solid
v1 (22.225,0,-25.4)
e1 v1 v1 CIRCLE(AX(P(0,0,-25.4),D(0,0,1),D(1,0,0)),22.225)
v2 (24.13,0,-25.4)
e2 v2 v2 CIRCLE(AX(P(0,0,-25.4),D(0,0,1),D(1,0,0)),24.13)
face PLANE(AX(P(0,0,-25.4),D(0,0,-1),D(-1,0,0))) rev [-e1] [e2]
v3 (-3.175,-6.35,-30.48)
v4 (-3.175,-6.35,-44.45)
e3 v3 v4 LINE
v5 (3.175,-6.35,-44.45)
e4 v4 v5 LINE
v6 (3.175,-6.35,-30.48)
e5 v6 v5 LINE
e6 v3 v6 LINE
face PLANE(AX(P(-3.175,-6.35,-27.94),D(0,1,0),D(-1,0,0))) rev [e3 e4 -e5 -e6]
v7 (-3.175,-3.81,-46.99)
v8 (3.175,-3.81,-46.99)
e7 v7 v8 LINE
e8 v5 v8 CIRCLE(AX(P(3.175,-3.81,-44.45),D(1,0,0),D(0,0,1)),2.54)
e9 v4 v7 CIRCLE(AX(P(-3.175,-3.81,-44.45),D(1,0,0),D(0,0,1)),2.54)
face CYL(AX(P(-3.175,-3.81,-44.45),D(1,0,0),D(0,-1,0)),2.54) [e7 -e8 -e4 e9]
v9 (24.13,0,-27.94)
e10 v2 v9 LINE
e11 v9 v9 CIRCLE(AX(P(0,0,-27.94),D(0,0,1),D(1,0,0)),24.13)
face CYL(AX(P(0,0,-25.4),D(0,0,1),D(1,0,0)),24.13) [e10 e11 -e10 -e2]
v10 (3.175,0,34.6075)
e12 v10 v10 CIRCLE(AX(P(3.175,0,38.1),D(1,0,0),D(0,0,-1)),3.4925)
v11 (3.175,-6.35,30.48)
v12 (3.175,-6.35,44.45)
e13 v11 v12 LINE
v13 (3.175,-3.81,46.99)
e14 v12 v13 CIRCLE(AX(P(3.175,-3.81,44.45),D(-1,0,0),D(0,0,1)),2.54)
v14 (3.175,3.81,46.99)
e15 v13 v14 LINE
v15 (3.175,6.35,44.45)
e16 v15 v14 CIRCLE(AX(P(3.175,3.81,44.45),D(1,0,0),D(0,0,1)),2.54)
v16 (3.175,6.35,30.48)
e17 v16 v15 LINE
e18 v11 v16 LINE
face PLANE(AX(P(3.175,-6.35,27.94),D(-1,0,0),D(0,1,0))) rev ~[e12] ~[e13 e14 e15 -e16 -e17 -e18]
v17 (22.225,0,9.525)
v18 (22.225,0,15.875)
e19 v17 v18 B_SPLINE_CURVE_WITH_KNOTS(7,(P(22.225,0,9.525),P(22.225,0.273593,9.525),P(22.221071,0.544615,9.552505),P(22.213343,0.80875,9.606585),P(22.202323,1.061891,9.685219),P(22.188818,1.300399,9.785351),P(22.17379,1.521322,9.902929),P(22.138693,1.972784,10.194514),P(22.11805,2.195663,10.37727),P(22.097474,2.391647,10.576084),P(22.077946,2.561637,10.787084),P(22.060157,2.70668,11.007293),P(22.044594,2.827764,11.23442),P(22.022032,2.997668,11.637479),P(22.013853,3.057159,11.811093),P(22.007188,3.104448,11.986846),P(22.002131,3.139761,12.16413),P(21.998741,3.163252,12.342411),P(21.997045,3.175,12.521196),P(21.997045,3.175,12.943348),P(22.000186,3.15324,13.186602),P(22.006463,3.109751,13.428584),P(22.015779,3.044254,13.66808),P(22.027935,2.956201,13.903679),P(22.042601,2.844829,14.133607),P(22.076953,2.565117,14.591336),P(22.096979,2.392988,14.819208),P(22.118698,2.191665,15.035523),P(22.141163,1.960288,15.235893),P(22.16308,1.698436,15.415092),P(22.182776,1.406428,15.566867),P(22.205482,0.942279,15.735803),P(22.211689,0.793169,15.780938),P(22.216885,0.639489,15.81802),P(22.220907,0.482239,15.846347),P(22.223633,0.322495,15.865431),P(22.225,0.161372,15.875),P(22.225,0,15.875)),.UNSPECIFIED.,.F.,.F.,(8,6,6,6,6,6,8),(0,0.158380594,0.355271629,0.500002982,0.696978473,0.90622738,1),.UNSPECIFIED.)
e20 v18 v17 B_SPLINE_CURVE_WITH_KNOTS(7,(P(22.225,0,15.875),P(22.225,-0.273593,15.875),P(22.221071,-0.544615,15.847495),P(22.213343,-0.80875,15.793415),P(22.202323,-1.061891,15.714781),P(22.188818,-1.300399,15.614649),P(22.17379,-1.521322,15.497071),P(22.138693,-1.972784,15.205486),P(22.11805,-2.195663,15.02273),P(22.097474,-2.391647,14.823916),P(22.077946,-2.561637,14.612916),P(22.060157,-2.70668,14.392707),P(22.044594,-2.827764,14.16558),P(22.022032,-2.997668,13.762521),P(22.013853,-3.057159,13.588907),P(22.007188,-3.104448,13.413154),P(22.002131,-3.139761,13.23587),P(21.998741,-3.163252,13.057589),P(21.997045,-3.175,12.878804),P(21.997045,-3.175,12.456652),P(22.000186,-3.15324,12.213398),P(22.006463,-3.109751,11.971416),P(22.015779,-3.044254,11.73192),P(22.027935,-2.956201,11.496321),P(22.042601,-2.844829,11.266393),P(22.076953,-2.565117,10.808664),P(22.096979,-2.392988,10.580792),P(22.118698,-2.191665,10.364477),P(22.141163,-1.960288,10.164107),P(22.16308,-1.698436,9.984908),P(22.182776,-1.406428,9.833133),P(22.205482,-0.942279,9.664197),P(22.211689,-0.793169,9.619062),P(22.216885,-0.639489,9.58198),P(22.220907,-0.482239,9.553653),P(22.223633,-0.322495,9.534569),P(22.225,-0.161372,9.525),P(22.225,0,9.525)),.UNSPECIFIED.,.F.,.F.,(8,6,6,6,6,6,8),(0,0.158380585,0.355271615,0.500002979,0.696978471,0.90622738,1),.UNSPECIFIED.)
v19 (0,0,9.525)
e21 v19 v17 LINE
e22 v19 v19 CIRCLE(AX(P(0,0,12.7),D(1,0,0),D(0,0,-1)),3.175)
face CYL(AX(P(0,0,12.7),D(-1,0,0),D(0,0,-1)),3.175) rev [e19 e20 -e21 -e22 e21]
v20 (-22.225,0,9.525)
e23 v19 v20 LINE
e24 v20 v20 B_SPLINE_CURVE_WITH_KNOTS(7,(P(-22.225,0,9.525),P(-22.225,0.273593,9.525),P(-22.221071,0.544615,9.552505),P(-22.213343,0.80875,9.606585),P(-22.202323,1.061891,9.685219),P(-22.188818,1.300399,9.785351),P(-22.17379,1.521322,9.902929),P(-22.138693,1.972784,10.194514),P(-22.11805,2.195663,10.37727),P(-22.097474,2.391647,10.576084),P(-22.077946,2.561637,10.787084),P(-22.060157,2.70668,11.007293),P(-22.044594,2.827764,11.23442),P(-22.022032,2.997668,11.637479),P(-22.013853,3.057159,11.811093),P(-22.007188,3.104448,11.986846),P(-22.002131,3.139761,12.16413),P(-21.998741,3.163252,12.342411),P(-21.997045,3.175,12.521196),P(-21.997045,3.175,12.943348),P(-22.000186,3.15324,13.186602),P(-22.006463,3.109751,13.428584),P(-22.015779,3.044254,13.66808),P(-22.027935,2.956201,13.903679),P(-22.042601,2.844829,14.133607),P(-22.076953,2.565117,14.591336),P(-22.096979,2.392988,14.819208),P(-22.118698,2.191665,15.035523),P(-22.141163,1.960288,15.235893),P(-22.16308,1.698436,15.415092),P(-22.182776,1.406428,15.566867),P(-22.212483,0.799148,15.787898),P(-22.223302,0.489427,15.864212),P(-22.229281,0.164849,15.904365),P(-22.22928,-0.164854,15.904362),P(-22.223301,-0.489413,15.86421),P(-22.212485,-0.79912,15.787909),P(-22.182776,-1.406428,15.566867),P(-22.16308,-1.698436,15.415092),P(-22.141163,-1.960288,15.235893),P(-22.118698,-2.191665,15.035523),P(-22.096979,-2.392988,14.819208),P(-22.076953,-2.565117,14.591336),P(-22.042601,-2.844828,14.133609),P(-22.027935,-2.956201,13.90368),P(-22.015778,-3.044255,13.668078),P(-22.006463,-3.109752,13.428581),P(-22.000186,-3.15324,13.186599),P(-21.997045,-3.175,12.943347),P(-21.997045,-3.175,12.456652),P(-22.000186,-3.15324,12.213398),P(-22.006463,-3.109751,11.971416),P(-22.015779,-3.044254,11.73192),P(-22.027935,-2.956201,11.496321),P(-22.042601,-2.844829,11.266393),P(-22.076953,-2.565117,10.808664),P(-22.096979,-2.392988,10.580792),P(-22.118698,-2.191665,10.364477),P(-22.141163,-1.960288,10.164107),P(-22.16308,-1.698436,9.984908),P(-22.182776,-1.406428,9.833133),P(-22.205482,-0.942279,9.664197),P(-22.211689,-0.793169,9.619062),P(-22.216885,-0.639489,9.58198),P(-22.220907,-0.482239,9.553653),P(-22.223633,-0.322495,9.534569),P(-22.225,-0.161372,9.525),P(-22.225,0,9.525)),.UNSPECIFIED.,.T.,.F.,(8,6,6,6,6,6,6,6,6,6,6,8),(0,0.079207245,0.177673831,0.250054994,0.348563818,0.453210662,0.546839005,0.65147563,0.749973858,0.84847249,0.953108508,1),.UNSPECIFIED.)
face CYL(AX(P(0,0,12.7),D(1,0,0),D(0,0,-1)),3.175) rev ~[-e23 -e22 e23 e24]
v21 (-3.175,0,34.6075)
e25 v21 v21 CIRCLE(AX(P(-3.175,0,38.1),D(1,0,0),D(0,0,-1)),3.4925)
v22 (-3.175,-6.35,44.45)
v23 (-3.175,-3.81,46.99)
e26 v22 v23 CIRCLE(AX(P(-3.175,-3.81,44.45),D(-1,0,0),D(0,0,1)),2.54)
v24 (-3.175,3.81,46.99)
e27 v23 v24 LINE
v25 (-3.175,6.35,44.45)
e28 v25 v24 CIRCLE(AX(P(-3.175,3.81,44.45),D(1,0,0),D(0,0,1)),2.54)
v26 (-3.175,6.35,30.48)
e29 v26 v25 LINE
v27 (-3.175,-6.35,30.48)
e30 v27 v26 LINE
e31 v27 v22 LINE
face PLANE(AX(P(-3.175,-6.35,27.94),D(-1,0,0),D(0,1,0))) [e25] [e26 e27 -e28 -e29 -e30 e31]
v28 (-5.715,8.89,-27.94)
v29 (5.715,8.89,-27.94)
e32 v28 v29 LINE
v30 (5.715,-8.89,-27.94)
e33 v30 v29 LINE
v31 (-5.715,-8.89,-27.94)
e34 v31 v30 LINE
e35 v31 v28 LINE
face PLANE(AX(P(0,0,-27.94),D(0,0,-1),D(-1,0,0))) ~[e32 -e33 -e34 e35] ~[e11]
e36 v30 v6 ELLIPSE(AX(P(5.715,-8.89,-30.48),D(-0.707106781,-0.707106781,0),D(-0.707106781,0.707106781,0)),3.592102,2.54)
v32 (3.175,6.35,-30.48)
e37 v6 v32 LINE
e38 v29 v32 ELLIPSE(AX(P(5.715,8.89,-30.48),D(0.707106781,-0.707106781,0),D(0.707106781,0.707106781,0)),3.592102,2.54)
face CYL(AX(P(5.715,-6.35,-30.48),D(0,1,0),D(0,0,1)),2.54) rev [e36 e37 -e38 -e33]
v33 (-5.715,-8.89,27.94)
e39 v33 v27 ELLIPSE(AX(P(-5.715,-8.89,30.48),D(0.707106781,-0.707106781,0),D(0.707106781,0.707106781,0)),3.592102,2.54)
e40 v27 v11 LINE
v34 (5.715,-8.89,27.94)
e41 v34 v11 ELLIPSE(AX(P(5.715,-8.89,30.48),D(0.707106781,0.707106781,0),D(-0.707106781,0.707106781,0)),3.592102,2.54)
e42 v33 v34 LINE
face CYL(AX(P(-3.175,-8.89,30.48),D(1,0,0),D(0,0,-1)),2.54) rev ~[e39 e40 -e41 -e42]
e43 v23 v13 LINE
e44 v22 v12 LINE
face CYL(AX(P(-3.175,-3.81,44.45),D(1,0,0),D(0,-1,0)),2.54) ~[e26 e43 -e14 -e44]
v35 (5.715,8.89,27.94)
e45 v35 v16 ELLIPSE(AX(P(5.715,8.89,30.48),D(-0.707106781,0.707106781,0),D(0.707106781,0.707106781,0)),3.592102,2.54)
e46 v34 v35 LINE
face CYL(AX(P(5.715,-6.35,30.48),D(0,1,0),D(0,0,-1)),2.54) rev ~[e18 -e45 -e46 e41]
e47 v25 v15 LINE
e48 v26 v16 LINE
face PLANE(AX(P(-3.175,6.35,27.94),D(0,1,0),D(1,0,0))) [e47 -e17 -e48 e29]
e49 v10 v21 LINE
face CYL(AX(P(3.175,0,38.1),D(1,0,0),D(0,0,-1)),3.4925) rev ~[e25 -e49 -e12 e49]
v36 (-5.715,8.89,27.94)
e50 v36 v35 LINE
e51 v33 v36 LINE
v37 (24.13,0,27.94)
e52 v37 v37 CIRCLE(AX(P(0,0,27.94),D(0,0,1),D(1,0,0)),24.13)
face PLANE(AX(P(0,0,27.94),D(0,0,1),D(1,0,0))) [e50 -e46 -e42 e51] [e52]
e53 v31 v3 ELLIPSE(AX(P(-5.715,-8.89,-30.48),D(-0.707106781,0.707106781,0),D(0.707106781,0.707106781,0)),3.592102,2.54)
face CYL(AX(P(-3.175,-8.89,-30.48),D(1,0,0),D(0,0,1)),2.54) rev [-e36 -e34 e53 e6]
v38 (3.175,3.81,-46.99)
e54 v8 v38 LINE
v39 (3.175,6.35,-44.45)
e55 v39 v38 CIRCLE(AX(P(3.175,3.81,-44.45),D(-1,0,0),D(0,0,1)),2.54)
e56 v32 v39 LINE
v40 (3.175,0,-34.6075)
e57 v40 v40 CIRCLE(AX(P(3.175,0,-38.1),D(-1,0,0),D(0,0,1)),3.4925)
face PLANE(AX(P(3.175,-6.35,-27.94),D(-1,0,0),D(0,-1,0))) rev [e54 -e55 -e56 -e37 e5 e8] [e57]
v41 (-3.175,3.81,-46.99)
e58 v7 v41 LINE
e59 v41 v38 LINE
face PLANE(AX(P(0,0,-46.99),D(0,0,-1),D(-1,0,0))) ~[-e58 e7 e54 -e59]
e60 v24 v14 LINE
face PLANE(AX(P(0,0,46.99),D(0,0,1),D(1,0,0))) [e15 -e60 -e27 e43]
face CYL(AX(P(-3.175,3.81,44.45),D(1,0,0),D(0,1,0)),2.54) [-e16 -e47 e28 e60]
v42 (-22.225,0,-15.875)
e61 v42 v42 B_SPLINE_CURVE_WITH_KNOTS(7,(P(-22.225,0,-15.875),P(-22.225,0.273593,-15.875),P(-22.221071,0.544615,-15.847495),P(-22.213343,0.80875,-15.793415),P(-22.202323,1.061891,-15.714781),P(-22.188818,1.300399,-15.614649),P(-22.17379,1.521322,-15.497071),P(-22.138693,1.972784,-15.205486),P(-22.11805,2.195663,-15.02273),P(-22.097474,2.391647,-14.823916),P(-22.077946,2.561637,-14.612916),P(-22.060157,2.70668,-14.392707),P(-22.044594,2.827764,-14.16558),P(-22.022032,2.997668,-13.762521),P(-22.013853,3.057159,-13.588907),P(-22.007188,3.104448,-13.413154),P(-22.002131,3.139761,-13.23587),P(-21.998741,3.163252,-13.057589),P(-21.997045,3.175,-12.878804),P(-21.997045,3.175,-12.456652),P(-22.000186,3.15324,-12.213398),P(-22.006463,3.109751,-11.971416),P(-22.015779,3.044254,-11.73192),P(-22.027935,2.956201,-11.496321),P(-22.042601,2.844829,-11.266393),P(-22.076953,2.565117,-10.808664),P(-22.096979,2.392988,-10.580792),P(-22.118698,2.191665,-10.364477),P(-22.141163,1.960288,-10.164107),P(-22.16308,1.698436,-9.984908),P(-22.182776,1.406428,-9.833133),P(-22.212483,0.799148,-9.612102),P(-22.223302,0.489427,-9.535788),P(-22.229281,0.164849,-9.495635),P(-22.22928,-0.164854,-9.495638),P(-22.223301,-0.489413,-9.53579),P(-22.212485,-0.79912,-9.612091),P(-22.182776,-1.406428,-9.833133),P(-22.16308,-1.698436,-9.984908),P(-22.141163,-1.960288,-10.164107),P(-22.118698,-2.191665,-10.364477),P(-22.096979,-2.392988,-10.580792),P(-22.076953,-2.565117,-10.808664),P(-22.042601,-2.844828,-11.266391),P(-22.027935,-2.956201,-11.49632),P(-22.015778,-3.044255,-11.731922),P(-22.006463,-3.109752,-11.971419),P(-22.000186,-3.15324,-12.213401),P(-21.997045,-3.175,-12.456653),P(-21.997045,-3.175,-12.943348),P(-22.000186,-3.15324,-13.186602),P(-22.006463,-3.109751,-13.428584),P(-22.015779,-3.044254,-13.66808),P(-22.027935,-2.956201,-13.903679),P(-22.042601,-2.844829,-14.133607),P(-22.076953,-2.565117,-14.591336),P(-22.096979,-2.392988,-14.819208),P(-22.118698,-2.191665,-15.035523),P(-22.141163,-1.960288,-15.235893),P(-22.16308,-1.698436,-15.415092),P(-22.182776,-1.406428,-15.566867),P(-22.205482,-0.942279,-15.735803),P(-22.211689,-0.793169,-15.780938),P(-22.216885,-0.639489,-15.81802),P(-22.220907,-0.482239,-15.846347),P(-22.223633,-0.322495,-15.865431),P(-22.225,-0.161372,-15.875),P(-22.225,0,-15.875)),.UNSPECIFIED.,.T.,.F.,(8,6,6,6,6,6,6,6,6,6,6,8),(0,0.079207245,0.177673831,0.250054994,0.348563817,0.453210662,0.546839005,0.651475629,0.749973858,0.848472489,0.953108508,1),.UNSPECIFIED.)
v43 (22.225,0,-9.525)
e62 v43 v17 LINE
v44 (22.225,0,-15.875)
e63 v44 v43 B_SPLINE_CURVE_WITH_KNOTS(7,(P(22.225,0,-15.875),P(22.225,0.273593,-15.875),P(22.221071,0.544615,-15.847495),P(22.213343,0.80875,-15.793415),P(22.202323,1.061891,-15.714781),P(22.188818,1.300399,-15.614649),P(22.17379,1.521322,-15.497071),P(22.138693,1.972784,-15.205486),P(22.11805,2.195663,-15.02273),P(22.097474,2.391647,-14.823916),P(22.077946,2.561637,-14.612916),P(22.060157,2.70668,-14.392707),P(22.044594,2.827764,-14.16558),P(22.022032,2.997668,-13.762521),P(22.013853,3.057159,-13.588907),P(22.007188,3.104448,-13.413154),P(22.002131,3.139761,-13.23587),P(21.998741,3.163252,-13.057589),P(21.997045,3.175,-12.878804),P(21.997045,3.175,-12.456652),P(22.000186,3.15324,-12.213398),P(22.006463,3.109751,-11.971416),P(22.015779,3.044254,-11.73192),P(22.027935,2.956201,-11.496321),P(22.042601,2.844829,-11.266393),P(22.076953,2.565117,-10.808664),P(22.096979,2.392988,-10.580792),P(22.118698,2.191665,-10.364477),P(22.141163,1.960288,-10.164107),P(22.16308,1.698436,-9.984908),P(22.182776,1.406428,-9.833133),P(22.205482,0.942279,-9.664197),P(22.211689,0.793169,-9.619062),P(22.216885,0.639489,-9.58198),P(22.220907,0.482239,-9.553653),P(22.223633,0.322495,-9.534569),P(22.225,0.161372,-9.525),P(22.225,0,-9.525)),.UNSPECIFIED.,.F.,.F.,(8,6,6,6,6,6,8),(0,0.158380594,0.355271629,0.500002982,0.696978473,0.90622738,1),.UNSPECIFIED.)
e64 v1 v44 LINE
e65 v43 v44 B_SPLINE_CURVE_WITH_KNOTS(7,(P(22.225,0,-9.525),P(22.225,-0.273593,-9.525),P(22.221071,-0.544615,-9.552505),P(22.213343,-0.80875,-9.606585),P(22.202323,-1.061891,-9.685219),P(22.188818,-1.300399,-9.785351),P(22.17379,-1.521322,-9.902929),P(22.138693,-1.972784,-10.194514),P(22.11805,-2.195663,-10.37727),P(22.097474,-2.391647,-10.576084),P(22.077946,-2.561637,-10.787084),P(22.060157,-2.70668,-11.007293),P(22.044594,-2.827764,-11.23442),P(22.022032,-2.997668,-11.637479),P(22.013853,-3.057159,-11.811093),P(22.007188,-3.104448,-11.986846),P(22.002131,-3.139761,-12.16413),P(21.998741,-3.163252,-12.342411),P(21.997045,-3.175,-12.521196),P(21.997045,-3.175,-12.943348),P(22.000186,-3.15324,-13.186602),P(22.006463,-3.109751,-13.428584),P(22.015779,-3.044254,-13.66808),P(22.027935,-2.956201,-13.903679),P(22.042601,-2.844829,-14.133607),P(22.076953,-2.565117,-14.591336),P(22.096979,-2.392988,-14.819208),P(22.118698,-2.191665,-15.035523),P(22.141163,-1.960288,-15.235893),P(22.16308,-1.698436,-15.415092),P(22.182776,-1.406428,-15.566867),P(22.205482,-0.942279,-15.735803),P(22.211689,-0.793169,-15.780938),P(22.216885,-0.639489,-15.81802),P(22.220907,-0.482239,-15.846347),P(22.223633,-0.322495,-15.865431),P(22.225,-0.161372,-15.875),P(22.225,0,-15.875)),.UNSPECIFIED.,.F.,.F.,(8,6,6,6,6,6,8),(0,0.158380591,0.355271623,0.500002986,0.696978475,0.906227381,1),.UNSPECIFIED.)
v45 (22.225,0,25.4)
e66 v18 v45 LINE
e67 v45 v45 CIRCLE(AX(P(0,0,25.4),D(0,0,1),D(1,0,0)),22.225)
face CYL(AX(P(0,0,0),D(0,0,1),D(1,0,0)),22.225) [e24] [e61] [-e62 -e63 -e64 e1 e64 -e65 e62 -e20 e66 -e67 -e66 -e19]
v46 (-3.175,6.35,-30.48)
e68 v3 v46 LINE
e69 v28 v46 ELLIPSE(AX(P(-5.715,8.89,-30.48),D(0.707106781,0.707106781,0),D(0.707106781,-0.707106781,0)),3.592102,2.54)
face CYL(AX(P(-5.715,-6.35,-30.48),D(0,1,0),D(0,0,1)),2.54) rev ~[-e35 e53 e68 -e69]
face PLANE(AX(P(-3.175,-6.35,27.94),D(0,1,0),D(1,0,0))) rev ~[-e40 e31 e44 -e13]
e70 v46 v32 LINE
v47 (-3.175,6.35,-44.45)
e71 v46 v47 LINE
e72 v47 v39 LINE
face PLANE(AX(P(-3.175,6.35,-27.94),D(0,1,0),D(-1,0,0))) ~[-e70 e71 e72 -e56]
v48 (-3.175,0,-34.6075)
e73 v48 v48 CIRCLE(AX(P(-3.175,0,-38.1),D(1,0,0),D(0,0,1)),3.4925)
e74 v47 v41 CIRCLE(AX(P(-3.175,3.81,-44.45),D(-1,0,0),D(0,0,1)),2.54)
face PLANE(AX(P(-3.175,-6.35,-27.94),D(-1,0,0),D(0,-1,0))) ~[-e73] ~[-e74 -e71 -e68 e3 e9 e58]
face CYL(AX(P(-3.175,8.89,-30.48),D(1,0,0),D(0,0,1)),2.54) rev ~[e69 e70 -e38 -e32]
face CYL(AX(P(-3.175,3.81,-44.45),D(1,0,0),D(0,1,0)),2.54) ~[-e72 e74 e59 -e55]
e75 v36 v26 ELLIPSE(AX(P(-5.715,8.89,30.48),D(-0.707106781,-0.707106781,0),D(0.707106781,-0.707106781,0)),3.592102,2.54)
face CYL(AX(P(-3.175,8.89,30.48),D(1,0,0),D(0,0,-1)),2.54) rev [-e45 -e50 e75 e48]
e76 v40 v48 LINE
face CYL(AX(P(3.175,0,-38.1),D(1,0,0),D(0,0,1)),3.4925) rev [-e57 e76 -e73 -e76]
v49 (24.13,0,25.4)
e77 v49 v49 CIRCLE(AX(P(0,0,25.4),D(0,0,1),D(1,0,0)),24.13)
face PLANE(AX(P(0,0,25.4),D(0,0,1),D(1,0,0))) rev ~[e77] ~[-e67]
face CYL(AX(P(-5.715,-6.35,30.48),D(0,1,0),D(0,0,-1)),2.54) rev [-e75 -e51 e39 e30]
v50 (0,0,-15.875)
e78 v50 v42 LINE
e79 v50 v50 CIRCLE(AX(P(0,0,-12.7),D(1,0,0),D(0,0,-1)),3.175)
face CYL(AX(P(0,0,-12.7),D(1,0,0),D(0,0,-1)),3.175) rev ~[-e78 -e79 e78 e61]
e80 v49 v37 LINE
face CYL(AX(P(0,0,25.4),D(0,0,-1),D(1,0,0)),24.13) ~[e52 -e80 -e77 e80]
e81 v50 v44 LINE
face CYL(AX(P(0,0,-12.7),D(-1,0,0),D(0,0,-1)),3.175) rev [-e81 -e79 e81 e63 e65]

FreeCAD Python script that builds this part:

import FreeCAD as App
import Part
import Sketcher

V = App.Vector
Q = App.Units.Quantity


def edges_at(feature, points):
    """Names of the edges that pass closest to the given points."""
    edges = feature.Shape.Edges
    near = lambda p: min(range(len(edges)), key=lambda i: edges[i].distToShape(Part.Vertex(*p))[0])
    return sorted({f"Edge{near(p) + 1}" for p in points})

doc = App.newDocument("Part")
params = doc.addObject("Spreadsheet::Sheet", "Params")
for row, (alias, value) in enumerate([
    ("sketch1_diameter", "1.75 in"),
    ("pad1_length", "2 in"),
    ("sketch2_diameter", "1.9 in"),
    ("pad2_length", "0.1 in"),
    ("sketch3_height", "0.5 in"),
    ("sketch3_width", "0.25 in"),
    ("pad3_length", "0.75 in"),
    ("sketch4_diameter", "0.275 in"),
    ("fillet_radius", "0.1 in"),
    ("fillet2_radius", "0.1 in"),
    ("sketch5_diameter", "0.25 in"),
], start=1):
    params.set(f"A{row}", alias)
    params.set(f"B{row}", "=" + value)
    params.setAlias(f"B{row}", alias)

body = doc.addObject("PartDesign::Body", "Body")

# Sketch on XY plane
sketch1 = body.newObject("Sketcher::SketchObject", "Sketch")
sketch1.AttachmentSupport = (doc.getObject("XY_Plane"), [""])
sketch1.MapMode = "FlatFace"
sketch1.addGeometry(Part.Circle(V(0, 0, 0), V(0, 0, 1), 22), False)
sketch1.addConstraint([
    Sketcher.Constraint("Coincident", 0, 3, -1, 1),
    Sketcher.Constraint("Diameter", 0, Q("1.75 in")),
])
sketch1.setExpression("Constraints[1]", "Params.sketch1_diameter")
pad1 = body.newObject("PartDesign::Pad", "Pad")
pad1.Profile = sketch1
pad1.setExpression("Length", "Params.pad1_length")
pad1.Midplane = True

# Sketch on XY plane
sketch2 = body.newObject("Sketcher::SketchObject", "Sketch001")
sketch2.AttachmentSupport = (doc.getObject("XY_Plane"), [""])
sketch2.MapMode = "FlatFace"
sketch2.AttachmentOffset = App.Placement(V(0, 0, 1 * 25.4), App.Rotation())
sketch2.addGeometry(Part.Circle(V(0, 0, 0), V(0, 0, 1), 24), False)
sketch2.addConstraint([
    Sketcher.Constraint("Coincident", 0, 3, -1, 1),
    Sketcher.Constraint("Diameter", 0, Q("1.9 in")),
])
sketch2.setExpression("Constraints[1]", "Params.sketch2_diameter")
pad2 = body.newObject("PartDesign::Pad", "Pad001")
pad2.Profile = sketch2
pad2.setExpression("Length", "Params.pad2_length")

# Sketch on XY plane
sketch3 = body.newObject("Sketcher::SketchObject", "Sketch002")
sketch3.AttachmentSupport = (doc.getObject("XY_Plane"), [""])
sketch3.MapMode = "FlatFace"
sketch3.AttachmentOffset = App.Placement(V(0, 0, 1.1 * 25.4), App.Rotation())
sketch3.addGeometry([
    Part.LineSegment(V(-3, 6, 0), V(-3, -6, 0)),
    Part.LineSegment(V(-3, -6, 0), V(3, -6, 0)),
    Part.LineSegment(V(3, -6, 0), V(3, 6, 0)),
    Part.LineSegment(V(3, 6, 0), V(-3, 6, 0)),
], False)
sketch3.addConstraint([
    Sketcher.Constraint("Coincident", 0, 2, 1, 1),
    Sketcher.Constraint("Coincident", 1, 2, 2, 1),
    Sketcher.Constraint("Coincident", 2, 2, 3, 1),
    Sketcher.Constraint("Coincident", 3, 2, 0, 1),
    Sketcher.Constraint("Vertical", 0),
    Sketcher.Constraint("Horizontal", 1),
    Sketcher.Constraint("Vertical", 2),
    Sketcher.Constraint("Horizontal", 3),
    Sketcher.Constraint("Symmetric", 0, 2, 2, 2, -1, 1),
    Sketcher.Constraint("DistanceY", 0, 2, 0, 1, Q("0.5 in")),
    Sketcher.Constraint("DistanceX", 1, 1, 1, 2, Q("0.25 in")),
])
sketch3.setExpression("Constraints[9]", "Params.sketch3_height")
sketch3.setExpression("Constraints[10]", "Params.sketch3_width")
pad3 = body.newObject("PartDesign::Pad", "Pad002")
pad3.Profile = sketch3
pad3.setExpression("Length", "Params.pad3_length")

# Sketch on YZ plane
sketch4 = body.newObject("Sketcher::SketchObject", "Sketch003")
sketch4.AttachmentSupport = (doc.getObject("YZ_Plane"), [""])
sketch4.MapMode = "FlatFace"
sketch4.AttachmentOffset = App.Placement(V(0, 0, 0.125 * 25.4), App.Rotation())
sketch4.addGeometry(Part.Circle(V(0, 38.1, 0), V(0, 0, 1), 3.5), False)
sketch4.addConstraint([
    Sketcher.Constraint("PointOnObject", 0, 3, -2),
    Sketcher.Constraint("Diameter", 0, Q("0.275 in")),
    Sketcher.Constraint("DistanceY", -1, 1, 0, 3, Q("1.5 in")),
])
sketch4.setExpression("Constraints[1]", "Params.sketch4_diameter")
pocket1 = body.newObject("PartDesign::Pocket", "Pocket")
pocket1.Profile = sketch4
pocket1.Type = "ThroughAll"
doc.recompute()

fillet = body.newObject("PartDesign::Fillet", "Fillet")
fillet.Base = (pocket1, edges_at(pocket1, [
    (3.175, 0, 27.94),
    (0, 6.35, 27.94),
    (-3.175, 0, 27.94),
    (0, -6.35, 27.94),
    (0, 6.35, 46.99),
    (0, -6.35, 46.99),
]))
fillet.setExpression("Radius", "Params.fillet_radius")
doc.recompute()

mirrored = body.newObject("PartDesign::Mirrored", "Mirrored")
mirrored.Originals = [pad2, pad3, pocket1]
mirrored.MirrorPlane = (doc.getObject("XY_Plane"), [""])
body.Tip = mirrored
doc.recompute()

fillet2 = body.newObject("PartDesign::Fillet", "Fillet001")
fillet2.Base = (mirrored, edges_at(mirrored, [
    (3.175, 0, -27.94),
    (0, 6.35, -27.94),
    (-3.175, 0, -27.94),
    (0, -6.35, -27.94),
    (0, 6.35, -46.99),
    (0, -6.35, -46.99),
]))
fillet2.setExpression("Radius", "Params.fillet2_radius")

# Sketch on YZ plane
sketch5 = body.newObject("Sketcher::SketchObject", "Sketch004")
sketch5.AttachmentSupport = (doc.getObject("YZ_Plane"), [""])
sketch5.MapMode = "FlatFace"
sketch5.addGeometry([
    Part.Circle(V(0, 12.7, 0), V(0, 0, 1), 3.2),
    Part.Circle(V(0, -12.7, 0), V(0, 0, 1), 3.2),
], False)
sketch5.addConstraint([
    Sketcher.Constraint("Equal", 0, 1),
    Sketcher.Constraint("Symmetric", 0, 3, 1, 3, -1, 1),
    Sketcher.Constraint("PointOnObject", 0, 3, -2),
    Sketcher.Constraint("Diameter", 0, Q("0.25 in")),
    Sketcher.Constraint("DistanceY", 1, 3, 0, 3, Q("1 in")),
])
sketch5.setExpression("Constraints[3]", "Params.sketch5_diameter")
pocket2 = body.newObject("PartDesign::Pocket", "Pocket001")
pocket2.Profile = sketch5
pocket2.Type = "ThroughAll"
pocket2.Midplane = True

doc.recompute()
